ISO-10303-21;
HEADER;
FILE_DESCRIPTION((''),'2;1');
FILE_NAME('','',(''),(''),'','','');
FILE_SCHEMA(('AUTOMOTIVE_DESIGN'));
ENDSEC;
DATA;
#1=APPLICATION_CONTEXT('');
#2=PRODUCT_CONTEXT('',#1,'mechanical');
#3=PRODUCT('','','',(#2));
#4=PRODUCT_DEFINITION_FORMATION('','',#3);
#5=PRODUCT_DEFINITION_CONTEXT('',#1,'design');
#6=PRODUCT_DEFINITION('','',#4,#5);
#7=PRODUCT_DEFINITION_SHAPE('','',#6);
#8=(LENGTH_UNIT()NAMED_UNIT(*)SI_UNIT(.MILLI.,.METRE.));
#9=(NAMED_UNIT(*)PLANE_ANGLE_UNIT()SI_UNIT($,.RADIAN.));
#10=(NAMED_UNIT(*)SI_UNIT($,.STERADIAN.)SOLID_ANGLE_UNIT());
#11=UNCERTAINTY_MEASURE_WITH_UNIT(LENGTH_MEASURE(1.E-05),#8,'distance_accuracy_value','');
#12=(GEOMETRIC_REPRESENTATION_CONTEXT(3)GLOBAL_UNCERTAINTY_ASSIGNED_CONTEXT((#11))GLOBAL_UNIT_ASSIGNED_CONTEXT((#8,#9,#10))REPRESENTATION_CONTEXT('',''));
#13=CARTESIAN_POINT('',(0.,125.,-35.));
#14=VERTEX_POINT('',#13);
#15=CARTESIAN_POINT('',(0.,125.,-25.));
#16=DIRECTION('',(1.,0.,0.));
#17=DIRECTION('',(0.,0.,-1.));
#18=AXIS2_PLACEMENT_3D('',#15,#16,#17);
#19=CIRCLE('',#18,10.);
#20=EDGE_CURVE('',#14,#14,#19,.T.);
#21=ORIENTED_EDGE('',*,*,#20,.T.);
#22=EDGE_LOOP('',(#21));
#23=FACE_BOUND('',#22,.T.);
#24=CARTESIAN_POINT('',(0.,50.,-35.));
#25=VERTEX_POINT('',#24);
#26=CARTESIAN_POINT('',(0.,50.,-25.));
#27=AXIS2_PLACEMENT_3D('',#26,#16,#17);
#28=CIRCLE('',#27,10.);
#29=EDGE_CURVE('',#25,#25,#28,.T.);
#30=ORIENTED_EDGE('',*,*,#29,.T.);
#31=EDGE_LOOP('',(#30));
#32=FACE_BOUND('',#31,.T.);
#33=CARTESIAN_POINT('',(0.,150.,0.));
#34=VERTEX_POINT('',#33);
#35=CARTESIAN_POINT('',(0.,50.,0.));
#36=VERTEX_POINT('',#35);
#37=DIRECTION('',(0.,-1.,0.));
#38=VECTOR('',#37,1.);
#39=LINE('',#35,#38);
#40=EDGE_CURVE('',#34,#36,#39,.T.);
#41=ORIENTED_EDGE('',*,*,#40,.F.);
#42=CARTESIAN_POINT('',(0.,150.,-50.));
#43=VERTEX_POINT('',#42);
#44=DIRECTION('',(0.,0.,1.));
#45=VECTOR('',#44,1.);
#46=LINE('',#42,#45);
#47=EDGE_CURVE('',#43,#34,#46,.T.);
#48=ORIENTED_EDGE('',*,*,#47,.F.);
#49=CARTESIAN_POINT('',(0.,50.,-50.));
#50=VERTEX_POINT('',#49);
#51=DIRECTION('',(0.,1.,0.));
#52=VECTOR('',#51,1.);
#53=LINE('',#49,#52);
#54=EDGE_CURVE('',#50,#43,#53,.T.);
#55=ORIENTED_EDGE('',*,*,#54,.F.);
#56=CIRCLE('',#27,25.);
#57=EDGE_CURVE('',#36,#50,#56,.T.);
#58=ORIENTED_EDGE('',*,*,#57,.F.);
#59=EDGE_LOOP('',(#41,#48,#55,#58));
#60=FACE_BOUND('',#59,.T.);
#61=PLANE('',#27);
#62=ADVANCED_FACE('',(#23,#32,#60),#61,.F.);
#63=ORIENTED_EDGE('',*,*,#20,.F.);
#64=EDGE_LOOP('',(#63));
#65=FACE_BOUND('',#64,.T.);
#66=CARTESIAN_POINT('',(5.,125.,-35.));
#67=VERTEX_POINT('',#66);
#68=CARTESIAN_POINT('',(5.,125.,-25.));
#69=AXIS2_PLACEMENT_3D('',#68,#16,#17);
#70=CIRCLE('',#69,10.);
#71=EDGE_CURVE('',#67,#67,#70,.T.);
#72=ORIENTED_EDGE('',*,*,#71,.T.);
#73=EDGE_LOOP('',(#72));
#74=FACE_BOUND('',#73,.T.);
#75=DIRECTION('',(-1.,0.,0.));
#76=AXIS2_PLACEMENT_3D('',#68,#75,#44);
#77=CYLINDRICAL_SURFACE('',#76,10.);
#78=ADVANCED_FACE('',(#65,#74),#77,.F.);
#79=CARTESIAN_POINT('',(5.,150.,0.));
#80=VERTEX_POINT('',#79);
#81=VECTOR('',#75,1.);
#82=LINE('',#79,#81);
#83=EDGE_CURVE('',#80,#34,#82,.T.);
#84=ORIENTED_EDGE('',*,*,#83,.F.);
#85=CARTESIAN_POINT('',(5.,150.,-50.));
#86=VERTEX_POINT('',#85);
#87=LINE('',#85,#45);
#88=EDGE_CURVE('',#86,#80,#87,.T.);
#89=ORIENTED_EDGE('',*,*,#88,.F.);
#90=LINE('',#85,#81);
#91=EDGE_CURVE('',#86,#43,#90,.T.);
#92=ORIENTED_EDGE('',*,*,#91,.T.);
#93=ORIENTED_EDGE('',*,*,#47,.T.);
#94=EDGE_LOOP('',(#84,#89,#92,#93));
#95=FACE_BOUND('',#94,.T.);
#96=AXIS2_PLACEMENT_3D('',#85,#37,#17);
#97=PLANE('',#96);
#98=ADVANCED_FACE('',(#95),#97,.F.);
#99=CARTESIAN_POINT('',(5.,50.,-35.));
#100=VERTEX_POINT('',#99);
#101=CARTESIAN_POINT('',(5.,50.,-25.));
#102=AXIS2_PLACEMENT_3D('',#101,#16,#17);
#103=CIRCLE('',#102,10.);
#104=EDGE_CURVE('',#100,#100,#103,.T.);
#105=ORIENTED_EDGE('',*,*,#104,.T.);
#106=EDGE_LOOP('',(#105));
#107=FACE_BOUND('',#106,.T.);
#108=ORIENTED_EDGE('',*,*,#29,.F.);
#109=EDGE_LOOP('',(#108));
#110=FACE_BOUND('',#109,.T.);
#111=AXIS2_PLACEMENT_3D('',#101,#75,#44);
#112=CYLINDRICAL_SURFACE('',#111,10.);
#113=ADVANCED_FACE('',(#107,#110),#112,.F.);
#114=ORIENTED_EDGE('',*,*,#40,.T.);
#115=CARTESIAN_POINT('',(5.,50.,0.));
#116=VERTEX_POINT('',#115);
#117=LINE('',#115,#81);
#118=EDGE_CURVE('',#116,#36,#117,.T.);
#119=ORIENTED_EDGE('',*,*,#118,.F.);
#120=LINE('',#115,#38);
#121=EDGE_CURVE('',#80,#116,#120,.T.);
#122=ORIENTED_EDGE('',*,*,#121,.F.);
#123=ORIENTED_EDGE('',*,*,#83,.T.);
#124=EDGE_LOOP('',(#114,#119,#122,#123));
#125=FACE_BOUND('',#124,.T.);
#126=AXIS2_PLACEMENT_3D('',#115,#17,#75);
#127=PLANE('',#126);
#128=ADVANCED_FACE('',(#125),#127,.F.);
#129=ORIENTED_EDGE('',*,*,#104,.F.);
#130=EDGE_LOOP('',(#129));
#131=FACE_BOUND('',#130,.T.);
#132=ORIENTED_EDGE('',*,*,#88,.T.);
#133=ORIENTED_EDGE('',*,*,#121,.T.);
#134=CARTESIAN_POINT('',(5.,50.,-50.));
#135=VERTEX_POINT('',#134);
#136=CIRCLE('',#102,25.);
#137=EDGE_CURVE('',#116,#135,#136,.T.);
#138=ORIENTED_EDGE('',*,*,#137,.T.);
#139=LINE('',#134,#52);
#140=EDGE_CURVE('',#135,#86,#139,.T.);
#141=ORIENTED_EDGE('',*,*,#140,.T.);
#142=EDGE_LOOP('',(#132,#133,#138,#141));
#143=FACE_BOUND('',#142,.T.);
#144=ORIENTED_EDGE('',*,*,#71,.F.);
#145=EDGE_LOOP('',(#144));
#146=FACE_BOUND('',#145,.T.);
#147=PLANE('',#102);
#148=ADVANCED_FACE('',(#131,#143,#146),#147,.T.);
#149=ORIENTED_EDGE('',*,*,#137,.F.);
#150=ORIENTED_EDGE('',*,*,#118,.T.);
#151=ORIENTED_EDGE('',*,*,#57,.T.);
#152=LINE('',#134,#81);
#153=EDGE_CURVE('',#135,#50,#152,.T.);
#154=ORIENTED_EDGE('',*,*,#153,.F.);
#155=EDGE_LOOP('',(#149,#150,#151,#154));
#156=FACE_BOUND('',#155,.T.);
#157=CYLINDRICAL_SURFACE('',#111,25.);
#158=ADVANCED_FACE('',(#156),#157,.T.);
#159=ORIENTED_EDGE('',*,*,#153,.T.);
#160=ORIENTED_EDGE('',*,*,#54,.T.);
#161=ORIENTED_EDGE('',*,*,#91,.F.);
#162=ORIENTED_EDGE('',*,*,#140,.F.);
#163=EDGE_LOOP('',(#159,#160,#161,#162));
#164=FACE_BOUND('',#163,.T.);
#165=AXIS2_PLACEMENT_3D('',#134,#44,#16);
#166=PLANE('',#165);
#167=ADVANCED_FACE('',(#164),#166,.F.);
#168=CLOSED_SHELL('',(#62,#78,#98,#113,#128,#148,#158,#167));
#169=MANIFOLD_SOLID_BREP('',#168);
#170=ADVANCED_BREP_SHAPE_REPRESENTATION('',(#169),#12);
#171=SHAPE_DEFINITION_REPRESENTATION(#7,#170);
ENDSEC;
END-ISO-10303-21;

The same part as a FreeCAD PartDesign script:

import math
import FreeCAD as App
import Part
import Sketcher

V = App.Vector

doc = App.newDocument("Part")
body = doc.addObject("PartDesign::Body", "Body")

# Sketch on YZ plane
sketch1 = body.newObject("Sketcher::SketchObject", "Sketch")
sketch1.AttachmentSupport = (doc.getObject("YZ_Plane"), [""])
sketch1.MapMode = "FlatFace"
sketch1.addGeometry([
    Part.LineSegment(V(150, -50, 0), V(150, 0, 0)),  # 0
    Part.LineSegment(V(150, 0, 0), V(50, 0, 0)),  # 1
    Part.ArcOfCircle(Part.Circle(V(50, -25, 0), V(0, 0, 1), 25), math.radians(90), math.radians(270)),  # 2
    Part.LineSegment(V(50, -50, 0), V(150, -50, 0)),  # 3
    Part.Circle(V(50, -25, 0), V(0, 0, 1), 10),  # 4
    Part.Circle(V(125, -25, 0), V(0, 0, 1), 10),  # 5
], False)
sketch1.addConstraint([
    Sketcher.Constraint("Coincident", 0, 2, 1, 1),
    Sketcher.Constraint("Tangent", 1, 2, 2, 1),
    Sketcher.Constraint("Tangent", 2, 2, 3, 1),
    Sketcher.Constraint("Coincident", 3, 2, 0, 1),
    Sketcher.Constraint("Vertical", 0),
    Sketcher.Constraint("Horizontal", 1),
    Sketcher.Constraint("Horizontal", 3),
    Sketcher.Constraint("Coincident", 4, 3, 2, 3),
    Sketcher.Constraint("Equal", 4, 5),
    Sketcher.Constraint("PointOnObject", 0, 2, -1),
    Sketcher.Constraint("Horizontal", 4, 3, 5, 3),
    Sketcher.Constraint("Diameter", 4, 20.0),
    Sketcher.Constraint("Radius", 2, 25.0),
    Sketcher.Constraint("DistanceX", 1, 2, 1, 1, 100.0),
    Sketcher.Constraint("DistanceX", -1, 1, 2, 3, 50.0),
    Sketcher.Constraint("DistanceX", -1, 1, 5, 3, 125.0),
])
pad1 = body.newObject("PartDesign::Pad", "Pad")
pad1.Profile = sketch1
pad1.Length = 5

doc.recompute()
